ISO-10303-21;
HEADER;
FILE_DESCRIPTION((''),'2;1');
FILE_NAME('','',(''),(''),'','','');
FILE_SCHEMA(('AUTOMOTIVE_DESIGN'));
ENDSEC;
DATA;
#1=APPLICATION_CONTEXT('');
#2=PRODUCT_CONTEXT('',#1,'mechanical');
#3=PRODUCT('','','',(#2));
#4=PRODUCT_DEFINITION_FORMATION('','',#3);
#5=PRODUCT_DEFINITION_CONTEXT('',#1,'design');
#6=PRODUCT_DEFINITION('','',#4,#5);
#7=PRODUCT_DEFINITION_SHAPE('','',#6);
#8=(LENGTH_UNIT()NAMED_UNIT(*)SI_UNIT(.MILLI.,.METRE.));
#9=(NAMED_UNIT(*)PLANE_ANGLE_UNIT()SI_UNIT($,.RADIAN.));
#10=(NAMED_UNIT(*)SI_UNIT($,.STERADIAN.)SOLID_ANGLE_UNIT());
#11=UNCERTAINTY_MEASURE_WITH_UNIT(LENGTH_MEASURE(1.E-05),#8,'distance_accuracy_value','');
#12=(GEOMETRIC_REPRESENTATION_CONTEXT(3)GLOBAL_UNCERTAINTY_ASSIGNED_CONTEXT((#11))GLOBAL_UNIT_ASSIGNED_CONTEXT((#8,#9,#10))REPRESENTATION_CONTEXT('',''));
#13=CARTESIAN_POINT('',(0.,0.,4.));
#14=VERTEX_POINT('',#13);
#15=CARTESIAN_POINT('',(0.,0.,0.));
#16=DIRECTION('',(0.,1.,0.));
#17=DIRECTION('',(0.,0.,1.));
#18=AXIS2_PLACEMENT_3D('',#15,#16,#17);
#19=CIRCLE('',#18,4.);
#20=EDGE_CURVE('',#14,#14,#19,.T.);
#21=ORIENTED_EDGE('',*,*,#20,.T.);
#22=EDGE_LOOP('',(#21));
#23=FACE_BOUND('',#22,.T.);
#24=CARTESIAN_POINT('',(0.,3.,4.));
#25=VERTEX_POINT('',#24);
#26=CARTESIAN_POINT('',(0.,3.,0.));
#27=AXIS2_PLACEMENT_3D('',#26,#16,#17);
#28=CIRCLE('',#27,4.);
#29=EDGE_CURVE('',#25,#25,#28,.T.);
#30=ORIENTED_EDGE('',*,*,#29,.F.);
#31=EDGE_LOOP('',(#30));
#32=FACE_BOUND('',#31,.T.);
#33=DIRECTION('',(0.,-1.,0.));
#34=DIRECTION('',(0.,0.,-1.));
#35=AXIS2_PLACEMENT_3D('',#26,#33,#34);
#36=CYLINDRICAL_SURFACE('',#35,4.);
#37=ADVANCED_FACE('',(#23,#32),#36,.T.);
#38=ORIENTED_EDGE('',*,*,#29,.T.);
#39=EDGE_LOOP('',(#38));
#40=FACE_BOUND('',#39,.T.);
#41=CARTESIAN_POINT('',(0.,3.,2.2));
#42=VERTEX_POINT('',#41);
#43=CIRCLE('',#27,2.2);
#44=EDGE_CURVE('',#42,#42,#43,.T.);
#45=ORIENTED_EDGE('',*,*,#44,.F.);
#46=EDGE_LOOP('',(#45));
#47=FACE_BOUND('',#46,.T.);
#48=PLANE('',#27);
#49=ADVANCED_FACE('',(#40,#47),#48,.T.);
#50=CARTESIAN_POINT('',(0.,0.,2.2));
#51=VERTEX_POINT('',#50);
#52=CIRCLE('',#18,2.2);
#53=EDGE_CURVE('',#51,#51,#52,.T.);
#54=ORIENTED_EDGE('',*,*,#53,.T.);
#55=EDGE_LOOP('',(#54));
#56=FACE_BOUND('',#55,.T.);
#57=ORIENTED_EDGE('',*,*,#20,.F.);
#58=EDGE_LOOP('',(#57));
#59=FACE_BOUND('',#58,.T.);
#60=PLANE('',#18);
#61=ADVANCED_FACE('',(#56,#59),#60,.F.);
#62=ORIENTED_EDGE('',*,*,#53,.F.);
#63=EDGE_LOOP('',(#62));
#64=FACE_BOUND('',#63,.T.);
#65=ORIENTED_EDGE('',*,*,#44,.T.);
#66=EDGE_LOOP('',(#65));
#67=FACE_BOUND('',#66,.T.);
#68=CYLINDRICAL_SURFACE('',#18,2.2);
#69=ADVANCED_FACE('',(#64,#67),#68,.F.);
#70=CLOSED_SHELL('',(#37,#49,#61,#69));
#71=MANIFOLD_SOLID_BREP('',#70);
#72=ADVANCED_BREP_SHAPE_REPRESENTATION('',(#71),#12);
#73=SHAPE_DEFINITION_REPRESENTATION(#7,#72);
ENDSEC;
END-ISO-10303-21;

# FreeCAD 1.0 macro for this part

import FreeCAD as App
import Part
import Sketcher
Q = App.Units.Quantity

doc = App.newDocument("Part")
body = doc.addObject("PartDesign::Body", "Body")

# Sketch on XZ plane
sketch1 = body.newObject("Sketcher::SketchObject", "Sketch")
sketch1.AttachmentSupport = (doc.getObject("XZ_Plane"), [""])
sketch1.MapMode = "FlatFace"
sketch1.addGeometry(Part.Circle(App.Vector(0, 0, 0), App.Vector(0, 0, 1), 4), False)
sketch1.addConstraint(Sketcher.Constraint("Coincident", 0, 3, -1, 1))
sketch1.addConstraint(Sketcher.Constraint("Diameter", 0, Q("8 mm")))
pad1 = body.newObject("PartDesign::Pad", "Pad")
pad1.Profile = sketch1
pad1.Length = 3
pad1.Reversed = True

# Sketch on XZ plane
sketch2 = body.newObject("Sketcher::SketchObject", "Sketch001")
sketch2.AttachmentSupport = (doc.getObject("XZ_Plane"), [""])
sketch2.MapMode = "FlatFace"
sketch2.AttachmentOffset = App.Placement(App.Vector(0, 0, -3), App.Rotation())
sketch2.addGeometry(Part.Circle(App.Vector(0, 0, 0), App.Vector(0, 0, 1), 2.2), False)
sketch2.addConstraint(Sketcher.Constraint("Coincident", 0, 3, -1, 1))
sketch2.addConstraint(Sketcher.Constraint("Diameter", 0, Q("4.4 mm")))
pocket1 = body.newObject("PartDesign::Pocket", "Pocket")
pocket1.Profile = sketch2
pocket1.Length = 3
pocket1.Reversed = True

doc.recompute()
